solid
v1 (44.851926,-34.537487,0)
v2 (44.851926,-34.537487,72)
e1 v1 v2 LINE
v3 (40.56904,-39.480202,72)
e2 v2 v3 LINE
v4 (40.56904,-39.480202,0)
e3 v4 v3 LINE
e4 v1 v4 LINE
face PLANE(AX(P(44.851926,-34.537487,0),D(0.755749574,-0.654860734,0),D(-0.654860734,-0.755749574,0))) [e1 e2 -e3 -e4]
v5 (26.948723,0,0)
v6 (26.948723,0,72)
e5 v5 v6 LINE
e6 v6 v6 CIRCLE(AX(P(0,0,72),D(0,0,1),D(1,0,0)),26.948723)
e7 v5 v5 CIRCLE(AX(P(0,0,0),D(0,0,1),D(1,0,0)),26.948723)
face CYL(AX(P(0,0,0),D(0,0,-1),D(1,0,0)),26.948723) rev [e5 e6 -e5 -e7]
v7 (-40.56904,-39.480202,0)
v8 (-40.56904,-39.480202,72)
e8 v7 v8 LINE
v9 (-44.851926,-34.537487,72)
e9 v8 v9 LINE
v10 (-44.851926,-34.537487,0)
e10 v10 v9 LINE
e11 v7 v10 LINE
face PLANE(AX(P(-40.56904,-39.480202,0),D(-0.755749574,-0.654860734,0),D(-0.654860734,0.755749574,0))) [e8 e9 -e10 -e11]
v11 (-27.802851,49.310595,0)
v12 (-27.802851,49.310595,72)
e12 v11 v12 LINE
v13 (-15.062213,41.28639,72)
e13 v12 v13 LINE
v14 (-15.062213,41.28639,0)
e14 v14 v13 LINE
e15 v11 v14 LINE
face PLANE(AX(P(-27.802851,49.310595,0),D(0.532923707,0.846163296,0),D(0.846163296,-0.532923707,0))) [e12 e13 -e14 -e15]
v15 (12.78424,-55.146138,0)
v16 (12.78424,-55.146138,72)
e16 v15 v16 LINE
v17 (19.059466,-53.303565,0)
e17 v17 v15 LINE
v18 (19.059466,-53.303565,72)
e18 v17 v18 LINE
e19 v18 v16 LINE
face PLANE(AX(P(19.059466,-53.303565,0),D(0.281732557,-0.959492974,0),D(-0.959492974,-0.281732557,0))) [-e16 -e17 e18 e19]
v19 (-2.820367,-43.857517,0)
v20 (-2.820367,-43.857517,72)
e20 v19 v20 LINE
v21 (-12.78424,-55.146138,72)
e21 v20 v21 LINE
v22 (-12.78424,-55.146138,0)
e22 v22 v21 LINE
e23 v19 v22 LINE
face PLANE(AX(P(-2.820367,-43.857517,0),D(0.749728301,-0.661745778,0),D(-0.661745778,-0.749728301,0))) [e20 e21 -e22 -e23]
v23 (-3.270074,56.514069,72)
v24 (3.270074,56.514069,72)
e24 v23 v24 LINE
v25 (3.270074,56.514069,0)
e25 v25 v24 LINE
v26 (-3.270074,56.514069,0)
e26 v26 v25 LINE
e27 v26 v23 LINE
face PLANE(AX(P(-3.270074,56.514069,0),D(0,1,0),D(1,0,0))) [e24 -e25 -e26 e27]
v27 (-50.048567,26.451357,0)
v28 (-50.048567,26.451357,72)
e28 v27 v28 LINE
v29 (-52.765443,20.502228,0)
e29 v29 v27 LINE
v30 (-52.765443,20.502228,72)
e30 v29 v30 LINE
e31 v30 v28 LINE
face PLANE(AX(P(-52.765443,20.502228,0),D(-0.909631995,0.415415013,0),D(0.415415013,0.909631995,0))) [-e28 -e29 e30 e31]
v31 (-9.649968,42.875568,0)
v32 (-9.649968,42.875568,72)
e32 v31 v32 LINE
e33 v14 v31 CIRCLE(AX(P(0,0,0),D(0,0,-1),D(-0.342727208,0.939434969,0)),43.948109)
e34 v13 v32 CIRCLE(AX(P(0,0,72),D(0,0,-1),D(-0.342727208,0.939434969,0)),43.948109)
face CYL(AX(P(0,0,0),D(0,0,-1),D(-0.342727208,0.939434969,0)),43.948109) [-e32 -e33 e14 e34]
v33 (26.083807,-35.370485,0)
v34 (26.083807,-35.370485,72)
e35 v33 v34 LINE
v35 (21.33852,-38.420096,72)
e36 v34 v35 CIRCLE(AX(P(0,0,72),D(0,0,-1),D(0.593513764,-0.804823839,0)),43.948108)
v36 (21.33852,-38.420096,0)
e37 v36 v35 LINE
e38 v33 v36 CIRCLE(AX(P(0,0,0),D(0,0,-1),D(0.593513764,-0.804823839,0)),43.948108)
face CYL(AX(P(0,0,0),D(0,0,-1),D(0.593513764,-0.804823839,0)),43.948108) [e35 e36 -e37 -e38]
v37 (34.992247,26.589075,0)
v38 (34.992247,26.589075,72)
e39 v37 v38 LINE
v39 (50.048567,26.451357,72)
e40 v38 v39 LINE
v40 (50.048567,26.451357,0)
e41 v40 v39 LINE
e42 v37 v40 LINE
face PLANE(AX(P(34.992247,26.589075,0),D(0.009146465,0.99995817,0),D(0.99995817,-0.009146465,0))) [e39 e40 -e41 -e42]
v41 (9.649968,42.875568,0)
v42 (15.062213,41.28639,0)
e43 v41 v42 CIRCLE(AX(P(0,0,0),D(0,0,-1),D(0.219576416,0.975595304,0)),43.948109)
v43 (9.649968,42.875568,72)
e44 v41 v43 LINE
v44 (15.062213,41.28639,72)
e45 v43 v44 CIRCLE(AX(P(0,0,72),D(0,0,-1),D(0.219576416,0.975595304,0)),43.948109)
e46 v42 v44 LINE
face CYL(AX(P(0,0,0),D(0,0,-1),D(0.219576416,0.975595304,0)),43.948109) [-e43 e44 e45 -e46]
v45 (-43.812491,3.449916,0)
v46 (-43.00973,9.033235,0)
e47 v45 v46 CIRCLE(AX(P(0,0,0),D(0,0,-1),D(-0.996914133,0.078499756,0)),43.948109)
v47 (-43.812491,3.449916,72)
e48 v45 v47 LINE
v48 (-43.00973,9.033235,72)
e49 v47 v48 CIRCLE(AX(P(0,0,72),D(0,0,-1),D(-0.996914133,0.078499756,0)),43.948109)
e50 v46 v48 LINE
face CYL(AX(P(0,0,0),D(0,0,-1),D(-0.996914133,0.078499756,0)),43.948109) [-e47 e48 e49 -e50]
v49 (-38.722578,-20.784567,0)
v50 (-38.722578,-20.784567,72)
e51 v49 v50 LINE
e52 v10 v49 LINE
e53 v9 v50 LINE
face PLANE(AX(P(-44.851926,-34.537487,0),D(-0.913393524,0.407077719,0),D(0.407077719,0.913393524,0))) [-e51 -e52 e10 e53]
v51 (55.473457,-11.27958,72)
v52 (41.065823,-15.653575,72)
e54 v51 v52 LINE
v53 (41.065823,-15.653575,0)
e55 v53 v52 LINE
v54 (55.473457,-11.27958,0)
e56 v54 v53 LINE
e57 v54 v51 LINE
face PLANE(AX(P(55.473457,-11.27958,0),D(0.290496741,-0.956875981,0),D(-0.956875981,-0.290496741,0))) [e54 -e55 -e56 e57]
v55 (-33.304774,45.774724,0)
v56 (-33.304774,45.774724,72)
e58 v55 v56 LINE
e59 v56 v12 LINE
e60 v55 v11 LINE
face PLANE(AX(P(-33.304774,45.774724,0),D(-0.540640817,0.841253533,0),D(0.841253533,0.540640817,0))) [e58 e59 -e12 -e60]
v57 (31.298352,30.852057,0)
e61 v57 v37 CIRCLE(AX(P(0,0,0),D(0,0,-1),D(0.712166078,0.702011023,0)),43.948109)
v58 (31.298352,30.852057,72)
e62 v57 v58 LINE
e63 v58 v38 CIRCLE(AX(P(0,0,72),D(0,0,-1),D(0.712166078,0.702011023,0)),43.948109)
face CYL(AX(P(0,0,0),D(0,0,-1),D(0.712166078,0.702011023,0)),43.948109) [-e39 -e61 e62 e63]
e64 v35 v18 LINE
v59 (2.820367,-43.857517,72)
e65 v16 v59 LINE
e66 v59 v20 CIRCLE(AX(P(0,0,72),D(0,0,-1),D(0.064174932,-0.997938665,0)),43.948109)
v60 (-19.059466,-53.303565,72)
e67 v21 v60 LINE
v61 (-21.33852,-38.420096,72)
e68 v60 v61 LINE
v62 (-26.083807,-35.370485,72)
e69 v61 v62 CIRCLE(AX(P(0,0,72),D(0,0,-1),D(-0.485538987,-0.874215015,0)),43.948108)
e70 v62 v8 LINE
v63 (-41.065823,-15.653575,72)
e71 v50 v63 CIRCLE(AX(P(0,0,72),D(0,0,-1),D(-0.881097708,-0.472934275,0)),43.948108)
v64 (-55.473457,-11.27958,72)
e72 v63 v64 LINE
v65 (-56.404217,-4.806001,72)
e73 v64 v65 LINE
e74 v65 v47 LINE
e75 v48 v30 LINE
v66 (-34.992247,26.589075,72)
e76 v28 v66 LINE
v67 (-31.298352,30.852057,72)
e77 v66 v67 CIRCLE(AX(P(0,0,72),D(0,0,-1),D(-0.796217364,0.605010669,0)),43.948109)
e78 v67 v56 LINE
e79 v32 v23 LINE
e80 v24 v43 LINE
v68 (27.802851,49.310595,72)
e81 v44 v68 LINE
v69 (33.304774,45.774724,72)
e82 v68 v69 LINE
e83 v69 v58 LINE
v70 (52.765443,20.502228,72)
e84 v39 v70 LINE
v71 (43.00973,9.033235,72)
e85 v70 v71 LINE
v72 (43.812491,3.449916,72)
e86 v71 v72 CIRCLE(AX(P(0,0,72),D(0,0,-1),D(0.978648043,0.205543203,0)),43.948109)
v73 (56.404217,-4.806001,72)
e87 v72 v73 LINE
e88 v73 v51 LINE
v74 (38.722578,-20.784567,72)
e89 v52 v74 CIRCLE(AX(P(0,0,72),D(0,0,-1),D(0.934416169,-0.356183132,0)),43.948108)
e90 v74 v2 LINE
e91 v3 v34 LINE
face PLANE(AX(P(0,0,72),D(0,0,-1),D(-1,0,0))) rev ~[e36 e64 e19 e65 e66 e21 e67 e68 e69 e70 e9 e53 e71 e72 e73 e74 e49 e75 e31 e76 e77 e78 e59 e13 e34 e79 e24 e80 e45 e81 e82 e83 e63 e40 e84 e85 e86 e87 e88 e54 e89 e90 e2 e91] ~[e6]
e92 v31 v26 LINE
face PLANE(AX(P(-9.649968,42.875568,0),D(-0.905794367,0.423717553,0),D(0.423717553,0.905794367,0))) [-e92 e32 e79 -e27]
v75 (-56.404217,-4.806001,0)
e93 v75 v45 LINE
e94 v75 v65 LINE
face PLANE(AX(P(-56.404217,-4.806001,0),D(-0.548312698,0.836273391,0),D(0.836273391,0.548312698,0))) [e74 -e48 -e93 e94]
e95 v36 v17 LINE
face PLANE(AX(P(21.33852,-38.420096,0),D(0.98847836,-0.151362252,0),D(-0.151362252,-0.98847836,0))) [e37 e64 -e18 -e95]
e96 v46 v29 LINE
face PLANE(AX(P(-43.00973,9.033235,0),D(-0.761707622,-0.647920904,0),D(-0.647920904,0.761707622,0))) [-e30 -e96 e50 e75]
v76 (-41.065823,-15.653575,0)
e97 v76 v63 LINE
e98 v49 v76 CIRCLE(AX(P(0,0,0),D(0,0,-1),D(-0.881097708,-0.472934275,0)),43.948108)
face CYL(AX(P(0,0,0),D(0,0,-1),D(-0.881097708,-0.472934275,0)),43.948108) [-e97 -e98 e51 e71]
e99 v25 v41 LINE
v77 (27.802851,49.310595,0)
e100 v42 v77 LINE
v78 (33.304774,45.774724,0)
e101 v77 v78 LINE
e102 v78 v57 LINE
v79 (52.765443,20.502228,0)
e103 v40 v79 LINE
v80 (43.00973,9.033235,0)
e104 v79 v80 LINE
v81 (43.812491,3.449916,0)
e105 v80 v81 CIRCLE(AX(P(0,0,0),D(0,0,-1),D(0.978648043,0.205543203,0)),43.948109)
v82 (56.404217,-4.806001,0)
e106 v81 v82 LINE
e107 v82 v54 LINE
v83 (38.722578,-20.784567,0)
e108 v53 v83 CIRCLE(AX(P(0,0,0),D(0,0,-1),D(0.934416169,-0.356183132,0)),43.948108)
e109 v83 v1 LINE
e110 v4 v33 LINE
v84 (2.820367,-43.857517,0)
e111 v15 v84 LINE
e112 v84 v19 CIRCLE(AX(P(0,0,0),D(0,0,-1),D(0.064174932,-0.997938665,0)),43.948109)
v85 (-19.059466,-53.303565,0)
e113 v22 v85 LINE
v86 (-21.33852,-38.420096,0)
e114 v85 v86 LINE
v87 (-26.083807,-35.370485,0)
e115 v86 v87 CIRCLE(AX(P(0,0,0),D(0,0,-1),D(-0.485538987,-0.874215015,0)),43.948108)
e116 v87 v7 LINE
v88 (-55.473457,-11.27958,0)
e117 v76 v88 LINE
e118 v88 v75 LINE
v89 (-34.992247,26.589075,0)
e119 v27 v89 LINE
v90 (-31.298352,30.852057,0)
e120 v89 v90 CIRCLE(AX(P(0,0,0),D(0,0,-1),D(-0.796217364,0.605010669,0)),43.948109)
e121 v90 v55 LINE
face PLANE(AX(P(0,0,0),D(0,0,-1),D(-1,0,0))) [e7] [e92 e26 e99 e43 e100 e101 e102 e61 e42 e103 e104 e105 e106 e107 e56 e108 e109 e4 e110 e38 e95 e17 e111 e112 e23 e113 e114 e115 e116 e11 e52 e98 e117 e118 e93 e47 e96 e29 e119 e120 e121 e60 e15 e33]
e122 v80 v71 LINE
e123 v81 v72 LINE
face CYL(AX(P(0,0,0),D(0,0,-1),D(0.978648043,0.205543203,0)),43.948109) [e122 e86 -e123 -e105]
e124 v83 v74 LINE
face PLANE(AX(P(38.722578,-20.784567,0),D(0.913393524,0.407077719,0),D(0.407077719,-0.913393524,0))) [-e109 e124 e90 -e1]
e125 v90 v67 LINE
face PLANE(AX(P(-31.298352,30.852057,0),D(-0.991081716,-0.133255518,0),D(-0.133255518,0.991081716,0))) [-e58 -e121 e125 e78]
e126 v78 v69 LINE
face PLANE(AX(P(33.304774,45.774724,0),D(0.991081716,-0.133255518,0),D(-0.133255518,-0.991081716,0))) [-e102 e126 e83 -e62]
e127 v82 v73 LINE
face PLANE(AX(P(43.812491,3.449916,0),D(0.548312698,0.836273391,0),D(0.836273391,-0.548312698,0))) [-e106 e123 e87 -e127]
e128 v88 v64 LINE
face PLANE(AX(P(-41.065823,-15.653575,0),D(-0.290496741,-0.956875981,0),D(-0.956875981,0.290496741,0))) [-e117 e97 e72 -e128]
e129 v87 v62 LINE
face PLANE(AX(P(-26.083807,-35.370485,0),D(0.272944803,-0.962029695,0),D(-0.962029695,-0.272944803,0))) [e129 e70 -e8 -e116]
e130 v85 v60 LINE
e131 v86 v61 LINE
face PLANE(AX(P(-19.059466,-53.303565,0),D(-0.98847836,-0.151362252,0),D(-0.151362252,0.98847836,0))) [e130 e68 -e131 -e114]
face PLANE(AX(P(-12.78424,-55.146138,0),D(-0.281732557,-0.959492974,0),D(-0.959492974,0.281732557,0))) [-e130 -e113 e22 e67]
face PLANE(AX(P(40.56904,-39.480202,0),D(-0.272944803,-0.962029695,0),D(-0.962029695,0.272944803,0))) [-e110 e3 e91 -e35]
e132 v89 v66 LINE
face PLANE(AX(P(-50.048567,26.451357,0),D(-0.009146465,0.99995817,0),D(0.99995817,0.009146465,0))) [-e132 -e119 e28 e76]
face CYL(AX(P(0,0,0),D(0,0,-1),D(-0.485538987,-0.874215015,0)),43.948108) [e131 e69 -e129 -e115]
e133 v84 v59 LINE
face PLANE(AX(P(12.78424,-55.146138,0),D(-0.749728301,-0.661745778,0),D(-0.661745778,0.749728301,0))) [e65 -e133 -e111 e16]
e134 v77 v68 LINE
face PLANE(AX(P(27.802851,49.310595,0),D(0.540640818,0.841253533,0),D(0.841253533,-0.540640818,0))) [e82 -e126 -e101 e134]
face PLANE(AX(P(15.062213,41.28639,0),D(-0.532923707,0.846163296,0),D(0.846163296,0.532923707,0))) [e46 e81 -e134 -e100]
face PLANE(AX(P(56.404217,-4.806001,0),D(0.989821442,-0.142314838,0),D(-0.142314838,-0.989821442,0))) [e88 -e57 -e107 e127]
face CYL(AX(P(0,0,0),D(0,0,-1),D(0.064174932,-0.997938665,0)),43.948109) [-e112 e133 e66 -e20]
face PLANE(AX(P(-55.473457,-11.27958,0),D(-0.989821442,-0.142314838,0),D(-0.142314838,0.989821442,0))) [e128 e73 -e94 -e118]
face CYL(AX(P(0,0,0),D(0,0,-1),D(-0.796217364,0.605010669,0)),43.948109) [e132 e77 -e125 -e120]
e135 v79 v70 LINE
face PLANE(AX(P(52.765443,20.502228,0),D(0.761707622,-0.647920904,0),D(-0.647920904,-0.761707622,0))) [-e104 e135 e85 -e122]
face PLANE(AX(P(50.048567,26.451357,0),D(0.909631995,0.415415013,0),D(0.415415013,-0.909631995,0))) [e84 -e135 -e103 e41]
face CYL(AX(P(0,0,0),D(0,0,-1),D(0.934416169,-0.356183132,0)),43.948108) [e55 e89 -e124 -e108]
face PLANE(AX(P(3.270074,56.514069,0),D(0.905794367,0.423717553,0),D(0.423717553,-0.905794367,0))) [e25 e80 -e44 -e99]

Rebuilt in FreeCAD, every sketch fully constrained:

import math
import FreeCAD as App
import Part
import Sketcher
from FreeCAD import Vector

doc = App.newDocument("Part")
body = doc.addObject("PartDesign::Body", "Body")

# Sketch on XY plane
sketch1 = body.newObject("Sketcher::SketchObject", "Sketch")
sketch1.AttachmentSupport = (doc.getObject("XY_Plane"), [""])
sketch1.MapMode = "FlatFace"
sketch1.addGeometry([
    Part.LineSegment(Vector(-3, 57, 0), Vector(-10, 43, 0)),  # 0
    Part.ArcOfCircle(Part.Circle(Vector(0, 0, 0), Vector(0, 0, 1), 44), math.radians(102.68), math.radians(110.04)),  # 1
    Part.LineSegment(Vector(-15, 41, 0), Vector(-28, 49, 0)),  # 2
    Part.LineSegment(Vector(-28, 49, 0), Vector(-33, 46, 0)),  # 3
    Part.LineSegment(Vector(-33, 46, 0), Vector(-31, 31, 0)),  # 4
    Part.ArcOfCircle(Part.Circle(Vector(0, 0, 0), Vector(0, 0, 1), 44), math.radians(135.41), math.radians(142.77)),  # 5
    Part.LineSegment(Vector(-35, 27, 0), Vector(-50, 26, 0)),  # 6
    Part.LineSegment(Vector(-50, 26, 0), Vector(-53, 21, 0)),  # 7
    Part.LineSegment(Vector(-53, 21, 0), Vector(-43, 9, 0)),  # 8
    Part.ArcOfCircle(Part.Circle(Vector(0, 0, 0), Vector(0, 0, 1), 44), math.radians(168.14), math.radians(175.5)),  # 9
    Part.LineSegment(Vector(-44, 3, 0), Vector(-56, -5, 0)),  # 10
    Part.LineSegment(Vector(-56, -5, 0), Vector(-55, -11, 0)),  # 11
    Part.LineSegment(Vector(-55, -11, 0), Vector(-41, -16, 0)),  # 12
    Part.ArcOfCircle(Part.Circle(Vector(0, 0, 0), Vector(0, 0, 1), 44), math.radians(-159.13), math.radians(-151.78)),  # 13
    Part.LineSegment(Vector(-39, -21, 0), Vector(-45, -35, 0)),  # 14
    Part.LineSegment(Vector(-45, -35, 0), Vector(-41, -39, 0)),  # 15
    Part.LineSegment(Vector(-41, -39, 0), Vector(-26, -35, 0)),  # 16
    Part.ArcOfCircle(Part.Circle(Vector(0, 0, 0), Vector(0, 0, 1), 44), math.radians(-126.41), math.radians(-119.05)),  # 17
    Part.LineSegment(Vector(-21, -38, 0), Vector(-19, -53, 0)),  # 18
    Part.LineSegment(Vector(-19, -53, 0), Vector(-13, -55, 0)),  # 19
    Part.LineSegment(Vector(-13, -55, 0), Vector(-3, -44, 0)),  # 20
    Part.ArcOfCircle(Part.Circle(Vector(0, 0, 0), Vector(0, 0, 1), 44), math.radians(-93.68), math.radians(-86.32)),  # 21
    Part.LineSegment(Vector(3, -44, 0), Vector(13, -55, 0)),  # 22
    Part.LineSegment(Vector(13, -55, 0), Vector(19, -53, 0)),  # 23
    Part.LineSegment(Vector(19, -53, 0), Vector(21, -38, 0)),  # 24
    Part.ArcOfCircle(Part.Circle(Vector(0, 0, 0), Vector(0, 0, 1), 44), math.radians(-60.95), math.radians(-53.59)),  # 25
    Part.LineSegment(Vector(26, -35, 0), Vector(41, -39, 0)),  # 26
    Part.LineSegment(Vector(41, -39, 0), Vector(45, -35, 0)),  # 27
    Part.LineSegment(Vector(45, -35, 0), Vector(39, -21, 0)),  # 28
    Part.ArcOfCircle(Part.Circle(Vector(0, 0, 0), Vector(0, 0, 1), 44), math.radians(-28.22), math.radians(-20.87)),  # 29
    Part.LineSegment(Vector(41, -16, 0), Vector(55, -11, 0)),  # 30
    Part.LineSegment(Vector(55, -11, 0), Vector(56, -5, 0)),  # 31
    Part.LineSegment(Vector(56, -5, 0), Vector(44, 3, 0)),  # 32
    Part.ArcOfCircle(Part.Circle(Vector(0, 0, 0), Vector(0, 0, 1), 44), math.radians(4.5), math.radians(11.86)),  # 33
    Part.LineSegment(Vector(43, 9, 0), Vector(53, 21, 0)),  # 34
    Part.LineSegment(Vector(53, 21, 0), Vector(50, 26, 0)),  # 35
    Part.LineSegment(Vector(50, 26, 0), Vector(35, 27, 0)),  # 36
    Part.ArcOfCircle(Part.Circle(Vector(0, 0, 0), Vector(0, 0, 1), 44), math.radians(37.23), math.radians(44.59)),  # 37
    Part.LineSegment(Vector(31, 31, 0), Vector(33, 46, 0)),  # 38
    Part.LineSegment(Vector(33, 46, 0), Vector(28, 49, 0)),  # 39
    Part.LineSegment(Vector(28, 49, 0), Vector(15, 41, 0)),  # 40
    Part.ArcOfCircle(Part.Circle(Vector(0, 0, 0), Vector(0, 0, 1), 44), math.radians(69.96), math.radians(77.32)),  # 41
    Part.LineSegment(Vector(10, 43, 0), Vector(3, 57, 0)),  # 42
    Part.LineSegment(Vector(3, 57, 0), Vector(-3, 57, 0)),  # 43
    Part.Circle(Vector(0, 0, 0), Vector(0, 0, 1), 27),  # 44
], False)
sketch1.addConstraint([
    Sketcher.Constraint("Coincident", 0, 2, 1, 1),
    Sketcher.Constraint("Coincident", 1, 2, 2, 1),
    Sketcher.Constraint("Coincident", 2, 2, 3, 1),
    Sketcher.Constraint("Coincident", 3, 2, 4, 1),
    Sketcher.Constraint("Coincident", 4, 2, 5, 1),
    Sketcher.Constraint("Coincident", 5, 2, 6, 1),
    Sketcher.Constraint("Coincident", 6, 2, 7, 1),
    Sketcher.Constraint("Coincident", 7, 2, 8, 1),
    Sketcher.Constraint("Coincident", 8, 2, 9, 1),
    Sketcher.Constraint("Coincident", 9, 2, 10, 1),
    Sketcher.Constraint("Coincident", 10, 2, 11, 1),
    Sketcher.Constraint("Coincident", 11, 2, 12, 1),
    Sketcher.Constraint("Coincident", 12, 2, 13, 1),
    Sketcher.Constraint("Coincident", 13, 2, 14, 1),
    Sketcher.Constraint("Coincident", 14, 2, 15, 1),
    Sketcher.Constraint("Coincident", 15, 2, 16, 1),
    Sketcher.Constraint("Coincident", 16, 2, 17, 1),
    Sketcher.Constraint("Coincident", 17, 2, 18, 1),
    Sketcher.Constraint("Coincident", 18, 2, 19, 1),
    Sketcher.Constraint("Coincident", 19, 2, 20, 1),
    Sketcher.Constraint("Coincident", 20, 2, 21, 1),
    Sketcher.Constraint("Coincident", 21, 2, 22, 1),
    Sketcher.Constraint("Coincident", 22, 2, 23, 1),
    Sketcher.Constraint("Coincident", 23, 2, 24, 1),
    Sketcher.Constraint("Coincident", 24, 2, 25, 1),
    Sketcher.Constraint("Coincident", 25, 2, 26, 1),
    Sketcher.Constraint("Coincident", 26, 2, 27, 1),
    Sketcher.Constraint("Coincident", 27, 2, 28, 1),
    Sketcher.Constraint("Coincident", 28, 2, 29, 1),
    Sketcher.Constraint("Coincident", 29, 2, 30, 1),
    Sketcher.Constraint("Coincident", 30, 2, 31, 1),
    Sketcher.Constraint("Coincident", 31, 2, 32, 1),
    Sketcher.Constraint("Coincident", 32, 2, 33, 1),
    Sketcher.Constraint("Coincident", 33, 2, 34, 1),
    Sketcher.Constraint("Coincident", 34, 2, 35, 1),
    Sketcher.Constraint("Coincident", 35, 2, 36, 1),
    Sketcher.Constraint("Coincident", 36, 2, 37, 1),
    Sketcher.Constraint("Coincident", 37, 2, 38, 1),
    Sketcher.Constraint("Coincident", 38, 2, 39, 1),
    Sketcher.Constraint("Coincident", 39, 2, 40, 1),
    Sketcher.Constraint("Coincident", 40, 2, 41, 1),
    Sketcher.Constraint("Coincident", 41, 2, 42, 1),
    Sketcher.Constraint("Coincident", 42, 2, 43, 1),
    Sketcher.Constraint("Coincident", 43, 2, 0, 1),
    Sketcher.Constraint("Horizontal", 43),
    Sketcher.Constraint("Coincident", 1, 3, -1, 1),
    Sketcher.Constraint("Coincident", 5, 3, -1, 1),
    Sketcher.Constraint("Coincident", 9, 3, -1, 1),
    Sketcher.Constraint("Coincident", 13, 3, -1, 1),
    Sketcher.Constraint("Coincident", 17, 3, -1, 1),
    Sketcher.Constraint("Coincident", 21, 3, -1, 1),
    Sketcher.Constraint("Coincident", 25, 3, -1, 1),
    Sketcher.Constraint("Coincident", 29, 3, -1, 1),
    Sketcher.Constraint("Coincident", 33, 3, -1, 1),
    Sketcher.Constraint("Coincident", 37, 3, -1, 1),
    Sketcher.Constraint("Coincident", 41, 3, -1, 1),
    Sketcher.Constraint("Coincident", 44, 3, -1, 1),
    Sketcher.Constraint("Equal", 1, 5),
    Sketcher.Constraint("Equal", 5, 9),
    Sketcher.Constraint("Equal", 9, 13),
    Sketcher.Constraint("Equal", 13, 17),
    Sketcher.Constraint("Equal", 17, 21),
    Sketcher.Constraint("Equal", 21, 25),
    Sketcher.Constraint("Equal", 25, 29),
    Sketcher.Constraint("Equal", 29, 33),
    Sketcher.Constraint("Equal", 33, 37),
    Sketcher.Constraint("Equal", 37, 41),
    Sketcher.Constraint("Symmetric", 19, 2, 22, 2, -2),
    Sketcher.Constraint("Symmetric", 18, 2, 23, 2, -2),
    Sketcher.Constraint("Symmetric", 15, 2, 26, 2, -2),
    Sketcher.Constraint("Symmetric", 14, 2, 27, 2, -2),
    Sketcher.Constraint("Symmetric", 11, 2, 30, 2, -2),
    Sketcher.Constraint("Symmetric", 10, 2, 31, 2, -2),
    Sketcher.Constraint("Symmetric", 7, 2, 34, 2, -2),
    Sketcher.Constraint("Symmetric", 6, 2, 35, 2, -2),
    Sketcher.Constraint("Symmetric", 3, 2, 38, 2, -2),
    Sketcher.Constraint("Symmetric", 2, 2, 39, 2, -2),
    Sketcher.Constraint("Horizontal", 20, 2, 21, 2),
    Sketcher.Constraint("Horizontal", 17, 2, 24, 2),
    Sketcher.Constraint("Horizontal", 16, 2, 25, 2),
    Sketcher.Constraint("Horizontal", 13, 2, 28, 2),
    Sketcher.Constraint("Horizontal", 12, 2, 29, 2),
    Sketcher.Constraint("Horizontal", 9, 2, 32, 2),
    Sketcher.Constraint("Horizontal", 8, 2, 33, 2),
    Sketcher.Constraint("Horizontal", 5, 2, 36, 2),
    Sketcher.Constraint("Horizontal", 4, 2, 37, 2),
    Sketcher.Constraint("Horizontal", 1, 2, 40, 2),
    Sketcher.Constraint("Horizontal", 0, 2, 41, 2),
    Sketcher.Constraint("Equal", 0, 2),
    Sketcher.Constraint("Equal", 2, 4),
    Sketcher.Constraint("Equal", 4, 6),
    Sketcher.Constraint("Equal", 3, 7),
    Sketcher.Constraint("Equal", 6, 8),
    Sketcher.Constraint("Equal", 8, 10),
    Sketcher.Constraint("Equal", 7, 11),
    Sketcher.Constraint("Equal", 10, 12),
    Sketcher.Constraint("Equal", 12, 14),
    Sketcher.Constraint("Equal", 11, 15),
    Sketcher.Constraint("Equal", 14, 16),
    Sketcher.Constraint("Equal", 16, 18),
    Sketcher.Constraint("Equal", 15, 19),
    Sketcher.Constraint("Equal", 18, 20),
    Sketcher.Constraint("Equal", 40, 42),
    Sketcher.Constraint("Radius", 1, 43.948109),
    Sketcher.Constraint("Diameter", 44, 53.897446),
    Sketcher.Constraint("DistanceY", 10, 2, -1, 1, 4.806001),
    Sketcher.Constraint("DistanceY", 16, 2, 14, 2, 0.832998),
    Sketcher.Constraint("DistanceY", 18, 2, 13, 2, 32.518998),
    Sketcher.Constraint("DistanceX", 43, 2, 43, 1, 6.540148),
    Sketcher.Constraint("DistanceY", 15, 2, -1, 1, 39.480202),
    Sketcher.Constraint("DistanceX", 4, 2, 2, 2, 3.495501),
    Sketcher.Constraint("DistanceY", 6, 2, 4, 2, 4.4007),
    Sketcher.Constraint("DistanceY", 13, 2, 8, 2, 29.817802),
    Sketcher.Constraint("DistanceX", 15, 2, 19, 2, 27.7848),
    Sketcher.Constraint("DistanceX", 18, 2, 20, 2, 16.239099),
    Sketcher.Constraint("DistanceY", 41, 2, 42, 2, 13.6385),
    Sketcher.Constraint("Distance", 0, 15.05695),
    Sketcher.Constraint("Distance", 3, 6.540148),
    Sketcher.Constraint("DistanceY", -1, 1, 1, 2, 41.28639),
    Sketcher.Constraint("DistanceX", 2, 2, -1, 1, 27.802851),
    Sketcher.Constraint("DistanceY", -1, 1, 7, 2, 20.502228),
    Sketcher.Constraint("DistanceX", 8, 2, -1, 1, 43.00973),
    Sketcher.Constraint("DistanceX", 9, 2, -1, 1, 43.812491),
    Sketcher.Constraint("DistanceY", 11, 2, -1, 1, 11.27958),
])
pad1 = body.newObject("PartDesign::Pad", "Pad")
pad1.Profile = sketch1
pad1.Length = 72

doc.recompute()
